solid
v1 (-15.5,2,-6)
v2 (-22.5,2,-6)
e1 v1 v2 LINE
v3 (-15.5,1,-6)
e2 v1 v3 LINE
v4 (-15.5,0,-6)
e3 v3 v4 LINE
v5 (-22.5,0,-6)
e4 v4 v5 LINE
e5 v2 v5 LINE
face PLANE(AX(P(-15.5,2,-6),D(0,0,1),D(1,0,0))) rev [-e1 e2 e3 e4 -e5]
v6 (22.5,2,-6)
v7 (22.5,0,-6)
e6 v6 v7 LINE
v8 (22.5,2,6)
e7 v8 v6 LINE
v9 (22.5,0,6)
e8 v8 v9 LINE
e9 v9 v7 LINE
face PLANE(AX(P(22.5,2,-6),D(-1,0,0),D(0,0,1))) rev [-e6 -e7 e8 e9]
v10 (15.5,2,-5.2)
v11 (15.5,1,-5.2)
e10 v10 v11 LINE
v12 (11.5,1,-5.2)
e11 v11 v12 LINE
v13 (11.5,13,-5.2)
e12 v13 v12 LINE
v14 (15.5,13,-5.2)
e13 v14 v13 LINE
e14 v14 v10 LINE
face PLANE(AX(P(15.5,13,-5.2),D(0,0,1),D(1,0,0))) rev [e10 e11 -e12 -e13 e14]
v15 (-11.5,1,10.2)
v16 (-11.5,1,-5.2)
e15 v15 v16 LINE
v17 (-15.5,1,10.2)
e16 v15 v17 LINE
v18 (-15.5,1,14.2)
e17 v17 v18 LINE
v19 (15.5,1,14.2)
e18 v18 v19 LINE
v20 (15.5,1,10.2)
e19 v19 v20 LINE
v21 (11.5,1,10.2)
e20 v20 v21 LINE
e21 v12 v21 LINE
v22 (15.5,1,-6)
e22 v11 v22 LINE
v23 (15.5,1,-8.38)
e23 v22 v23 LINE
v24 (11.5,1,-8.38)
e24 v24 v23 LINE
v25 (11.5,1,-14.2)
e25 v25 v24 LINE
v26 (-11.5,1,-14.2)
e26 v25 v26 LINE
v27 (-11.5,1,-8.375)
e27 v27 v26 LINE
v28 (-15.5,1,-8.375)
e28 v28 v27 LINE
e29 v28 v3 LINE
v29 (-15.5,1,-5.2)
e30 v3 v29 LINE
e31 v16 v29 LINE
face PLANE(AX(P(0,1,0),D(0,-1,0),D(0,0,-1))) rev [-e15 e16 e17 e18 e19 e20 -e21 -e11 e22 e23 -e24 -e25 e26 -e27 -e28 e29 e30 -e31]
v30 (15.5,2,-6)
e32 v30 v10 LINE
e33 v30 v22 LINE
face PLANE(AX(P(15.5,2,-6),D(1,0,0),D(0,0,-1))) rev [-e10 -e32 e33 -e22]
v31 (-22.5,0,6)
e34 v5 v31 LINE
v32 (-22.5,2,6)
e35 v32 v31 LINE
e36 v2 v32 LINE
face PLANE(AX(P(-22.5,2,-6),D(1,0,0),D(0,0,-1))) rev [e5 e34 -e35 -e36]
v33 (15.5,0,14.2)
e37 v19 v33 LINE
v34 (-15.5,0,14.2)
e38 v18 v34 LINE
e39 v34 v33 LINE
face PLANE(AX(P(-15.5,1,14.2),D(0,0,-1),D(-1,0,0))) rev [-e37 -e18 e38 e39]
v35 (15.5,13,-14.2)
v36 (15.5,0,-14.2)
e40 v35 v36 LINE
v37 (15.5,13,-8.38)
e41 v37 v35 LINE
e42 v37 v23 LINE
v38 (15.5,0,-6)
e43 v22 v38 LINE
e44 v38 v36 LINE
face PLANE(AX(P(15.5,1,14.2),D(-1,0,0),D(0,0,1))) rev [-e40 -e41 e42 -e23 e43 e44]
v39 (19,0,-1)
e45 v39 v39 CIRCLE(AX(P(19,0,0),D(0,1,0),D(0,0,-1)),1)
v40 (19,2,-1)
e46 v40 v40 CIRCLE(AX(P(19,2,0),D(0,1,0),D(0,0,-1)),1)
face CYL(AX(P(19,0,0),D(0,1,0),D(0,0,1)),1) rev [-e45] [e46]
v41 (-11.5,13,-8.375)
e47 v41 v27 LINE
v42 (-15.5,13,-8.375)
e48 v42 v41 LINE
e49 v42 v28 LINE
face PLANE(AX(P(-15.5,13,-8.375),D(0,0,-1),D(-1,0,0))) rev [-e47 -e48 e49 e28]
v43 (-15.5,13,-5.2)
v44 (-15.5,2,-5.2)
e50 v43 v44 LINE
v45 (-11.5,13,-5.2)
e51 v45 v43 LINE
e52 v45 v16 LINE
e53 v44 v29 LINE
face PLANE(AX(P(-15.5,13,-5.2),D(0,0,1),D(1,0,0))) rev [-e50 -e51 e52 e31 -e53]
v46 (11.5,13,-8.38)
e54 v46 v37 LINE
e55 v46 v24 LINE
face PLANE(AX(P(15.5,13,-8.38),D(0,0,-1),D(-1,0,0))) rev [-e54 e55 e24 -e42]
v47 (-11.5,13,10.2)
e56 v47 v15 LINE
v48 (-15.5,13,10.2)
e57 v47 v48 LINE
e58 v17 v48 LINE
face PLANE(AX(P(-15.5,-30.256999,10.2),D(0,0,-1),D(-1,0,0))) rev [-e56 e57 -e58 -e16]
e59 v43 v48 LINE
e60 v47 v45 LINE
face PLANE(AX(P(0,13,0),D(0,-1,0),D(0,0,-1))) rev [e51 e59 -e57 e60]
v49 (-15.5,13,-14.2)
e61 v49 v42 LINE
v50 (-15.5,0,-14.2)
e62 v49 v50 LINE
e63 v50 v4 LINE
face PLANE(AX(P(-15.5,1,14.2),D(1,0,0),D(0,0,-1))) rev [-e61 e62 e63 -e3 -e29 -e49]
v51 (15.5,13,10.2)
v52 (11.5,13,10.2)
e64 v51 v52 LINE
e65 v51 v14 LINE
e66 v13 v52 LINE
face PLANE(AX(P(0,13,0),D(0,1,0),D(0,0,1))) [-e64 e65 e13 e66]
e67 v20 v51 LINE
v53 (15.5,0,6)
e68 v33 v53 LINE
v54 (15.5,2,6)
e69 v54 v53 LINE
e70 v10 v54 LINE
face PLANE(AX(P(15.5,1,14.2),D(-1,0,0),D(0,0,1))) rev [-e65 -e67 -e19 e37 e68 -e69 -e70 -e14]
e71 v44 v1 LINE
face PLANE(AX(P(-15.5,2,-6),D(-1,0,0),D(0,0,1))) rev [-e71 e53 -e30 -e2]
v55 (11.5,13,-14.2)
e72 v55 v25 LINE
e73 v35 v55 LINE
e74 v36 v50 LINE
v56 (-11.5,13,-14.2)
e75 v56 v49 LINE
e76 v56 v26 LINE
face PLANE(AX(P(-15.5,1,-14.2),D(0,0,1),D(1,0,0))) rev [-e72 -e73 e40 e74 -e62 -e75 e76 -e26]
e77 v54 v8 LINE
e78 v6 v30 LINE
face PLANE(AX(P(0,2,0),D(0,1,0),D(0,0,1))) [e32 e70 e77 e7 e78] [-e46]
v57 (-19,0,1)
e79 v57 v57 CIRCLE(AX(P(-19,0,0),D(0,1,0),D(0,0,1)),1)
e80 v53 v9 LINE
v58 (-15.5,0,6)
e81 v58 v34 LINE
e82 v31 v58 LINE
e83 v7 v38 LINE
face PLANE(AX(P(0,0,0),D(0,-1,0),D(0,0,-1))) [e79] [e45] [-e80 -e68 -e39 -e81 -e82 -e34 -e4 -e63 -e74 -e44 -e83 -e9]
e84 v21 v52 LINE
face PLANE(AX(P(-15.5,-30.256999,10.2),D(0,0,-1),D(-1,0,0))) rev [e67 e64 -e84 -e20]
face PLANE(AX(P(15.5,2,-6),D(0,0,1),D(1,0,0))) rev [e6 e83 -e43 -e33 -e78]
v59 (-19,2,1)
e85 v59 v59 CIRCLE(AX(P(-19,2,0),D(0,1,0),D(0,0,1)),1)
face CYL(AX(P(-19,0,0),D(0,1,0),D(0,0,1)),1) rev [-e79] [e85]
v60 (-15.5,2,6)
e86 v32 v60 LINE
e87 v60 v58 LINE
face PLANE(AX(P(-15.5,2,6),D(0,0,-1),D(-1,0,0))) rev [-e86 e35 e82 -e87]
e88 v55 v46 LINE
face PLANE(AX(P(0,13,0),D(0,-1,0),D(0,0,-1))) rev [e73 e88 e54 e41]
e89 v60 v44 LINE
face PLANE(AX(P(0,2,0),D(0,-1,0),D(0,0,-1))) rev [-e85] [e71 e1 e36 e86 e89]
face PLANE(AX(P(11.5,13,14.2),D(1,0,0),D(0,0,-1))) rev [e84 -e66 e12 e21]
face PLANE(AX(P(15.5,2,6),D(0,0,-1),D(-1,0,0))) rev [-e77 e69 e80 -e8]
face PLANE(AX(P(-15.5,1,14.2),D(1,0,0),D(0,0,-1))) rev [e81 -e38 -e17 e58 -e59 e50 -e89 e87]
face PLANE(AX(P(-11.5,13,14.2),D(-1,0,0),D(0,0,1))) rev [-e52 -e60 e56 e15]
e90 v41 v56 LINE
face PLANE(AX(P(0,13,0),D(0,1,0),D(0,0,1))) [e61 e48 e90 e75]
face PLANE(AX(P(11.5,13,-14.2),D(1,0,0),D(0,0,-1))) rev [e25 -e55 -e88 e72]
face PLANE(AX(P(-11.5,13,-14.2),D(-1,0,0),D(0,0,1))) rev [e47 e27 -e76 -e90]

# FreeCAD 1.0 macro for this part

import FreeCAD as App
import Part
import Sketcher
from FreeCAD import Vector


def add_polygon(sketch, points):
    """Adds a closed chain of lines whose ends are joined by coincident constraints."""
    first, n = sketch.GeometryCount, len(points)
    for a, b in zip(points, points[1:] + points[:1]):
        sketch.addGeometry(Part.LineSegment(App.Vector(*a, 0), App.Vector(*b, 0)), False)
    for i in range(n):
        sketch.addConstraint(Sketcher.Constraint("Coincident", first + i, 2, first + (i + 1) % n, 1))

doc = App.newDocument("Part")
body = doc.addObject("PartDesign::Body", "Body")

# Sketch on XZ plane
sketch1 = doc.addObject("Sketcher::SketchObject", "Sketch")
body.addObject(sketch1)
sketch1.AttachmentSupport = (doc.XZ_Plane, [""])
sketch1.MapMode = "FlatFace"
add_polygon(sketch1, [(-16, -14), (-16, 14), (16, 14), (16, -14)])  # lines 0-3
sketch1.addConstraint(Sketcher.Constraint("Vertical", 0))
sketch1.addConstraint(Sketcher.Constraint("Horizontal", 1))
sketch1.addConstraint(Sketcher.Constraint("Vertical", 2))
sketch1.addConstraint(Sketcher.Constraint("Horizontal", 3))
sketch1.addConstraint(Sketcher.Constraint("Symmetric", 0, 2, 2, 2, -1, 1))
sketch1.addConstraint(Sketcher.Constraint("DistanceX", 1, 1, 1, 2, 31.0))
sketch1.addConstraint(Sketcher.Constraint("DistanceY", 0, 1, 0, 2, 28.4))
pad1 = doc.addObject("PartDesign::Pad", "Pad")
body.addObject(pad1)
pad1.Profile = sketch1
pad1.Length = 1
pad1.Reversed = True

# Sketch on XZ plane
sketch2 = doc.addObject("Sketcher::SketchObject", "Sketch001")
body.addObject(sketch2)
sketch2.AttachmentSupport = (doc.XZ_Plane, [""])
sketch2.MapMode = "FlatFace"
sketch2.AttachmentOffset = App.Placement(Vector(0, 0, -1), App.Rotation())
add_polygon(sketch2, [(-15.5, -5.2), (-15.5, 14.2), (-11.5, 14.2), (-11.5, -5.2)])  # lines 0-3
add_polygon(sketch2, [(11.5, -5.2), (11.5, 14.2), (15.5, 14.2), (15.5, -5.2)])  # lines 4-7
add_polygon(sketch2, [(-15.5, -14.2), (-15.5, -8.4), (-11.5, -8.4), (-11.5, -14.2)])  # lines 8-11
add_polygon(sketch2, [(11.5, -14.2), (11.5, -8.4), (15.5, -8.4), (15.5, -14.2)])  # lines 12-15
sketch2.addConstraint(Sketcher.Constraint("Vertical", 0))
sketch2.addConstraint(Sketcher.Constraint("Horizontal", 1))
sketch2.addConstraint(Sketcher.Constraint("Vertical", 2))
sketch2.addConstraint(Sketcher.Constraint("Horizontal", 3))
sketch2.addConstraint(Sketcher.Constraint("Vertical", 4))
sketch2.addConstraint(Sketcher.Constraint("Horizontal", 5))
sketch2.addConstraint(Sketcher.Constraint("Vertical", 6))
sketch2.addConstraint(Sketcher.Constraint("Horizontal", 7))
sketch2.addConstraint(Sketcher.Constraint("Vertical", 8))
sketch2.addConstraint(Sketcher.Constraint("Horizontal", 9))
sketch2.addConstraint(Sketcher.Constraint("Vertical", 10))
sketch2.addConstraint(Sketcher.Constraint("Horizontal", 11))
sketch2.addConstraint(Sketcher.Constraint("Vertical", 12))
sketch2.addConstraint(Sketcher.Constraint("Horizontal", 13))
sketch2.addConstraint(Sketcher.Constraint("Vertical", 14))
sketch2.addConstraint(Sketcher.Constraint("Horizontal", 15))
sketch2.addConstraint(Sketcher.Constraint("Symmetric", 4, 2, 10, 2, -1, 1))
sketch2.addConstraint(Sketcher.Constraint("Symmetric", 0, 2, 14, 2, -1, 1))
sketch2.addConstraint(Sketcher.Constraint("Symmetric", 1, 2, 4, 2, -2))
sketch2.addConstraint(Sketcher.Constraint("Symmetric", 3, 2, 6, 2, -2))
sketch2.addConstraint(Sketcher.Constraint("Vertical", 3, 2, 8, 2))
sketch2.addConstraint(Sketcher.Constraint("Vertical", 7, 2, 12, 2))
sketch2.addConstraint(Sketcher.Constraint("DistanceX", 1, 1, 1, 2, 4.0))
sketch2.addConstraint(Sketcher.Constraint("DistanceY", 0, 1, 0, 2, 19.4))
sketch2.addConstraint(Sketcher.Constraint("DistanceX", 1, 2, 4, 2, 23.0))
sketch2.addConstraint(Sketcher.Constraint("DistanceY", 10, 2, 2, 2, 9.0))
sketch2.addConstraint(Sketcher.Constraint("DistanceY", 12, 1, 12, 2, 5.82))
sketch2.addConstraint(Sketcher.Constraint("DistanceY", 8, 1, 8, 2, 5.825))
pad2 = doc.addObject("PartDesign::Pad", "Pad001")
body.addObject(pad2)
pad2.Profile = sketch2
pad2.Length = 12
pad2.Reversed = True

# Sketch on XZ plane
sketch3 = doc.addObject("Sketcher::SketchObject", "Sketch002")
body.addObject(sketch3)
sketch3.AttachmentSupport = (doc.XZ_Plane, [""])
sketch3.MapMode = "FlatFace"
sketch3.AttachmentOffset = App.Placement(Vector(0, 0, -13), App.Rotation())
add_polygon(sketch3, [(-15.5, 10.2), (-15.5, 14.2), (15.5, 14.2), (15.5, 10.2)])  # lines 0-3
sketch3.addConstraint(Sketcher.Constraint("Vertical", 0))
sketch3.addConstraint(Sketcher.Constraint("Horizontal", 1))
sketch3.addConstraint(Sketcher.Constraint("Vertical", 2))
sketch3.addConstraint(Sketcher.Constraint("Horizontal", 3))
sketch3.addConstraint(Sketcher.Constraint("DistanceX", 1, 1, 1, 2, 31.0))
sketch3.addConstraint(Sketcher.Constraint("DistanceY", 0, 1, 0, 2, 4.0))
sketch3.addConstraint(Sketcher.Constraint("DistanceX", 0, 2, -1, 1, 15.5))
sketch3.addConstraint(Sketcher.Constraint("DistanceY", -1, 1, 0, 2, 14.2))
pocket1 = doc.addObject("PartDesign::Pocket", "Pocket")
body.addObject(pocket1)
pocket1.Profile = sketch3
pocket1.Length = 12
pocket1.Reversed = True

# Sketch on XZ plane
sketch4 = doc.addObject("Sketcher::SketchObject", "Sketch003")
body.addObject(sketch4)
sketch4.AttachmentSupport = (doc.XZ_Plane, [""])
sketch4.MapMode = "FlatFace"
add_polygon(sketch4, [(16, -6), (16, 6), (22, 6), (22, -6)])  # lines 0-3
add_polygon(sketch4, [(-22, -6), (-22, 6), (-16, 6), (-16, -6)])  # lines 4-7
sketch4.addConstraint(Sketcher.Constraint("Vertical", 0))
sketch4.addConstraint(Sketcher.Constraint("Horizontal", 1))
sketch4.addConstraint(Sketcher.Constraint("Vertical", 2))
sketch4.addConstraint(Sketcher.Constraint("Horizontal", 3))
sketch4.addConstraint(Sketcher.Constraint("Vertical", 4))
sketch4.addConstraint(Sketcher.Constraint("Horizontal", 5))
sketch4.addConstraint(Sketcher.Constraint("Vertical", 6))
sketch4.addConstraint(Sketcher.Constraint("Horizontal", 7))
sketch4.addConstraint(Sketcher.Constraint("Symmetric", 2, 2, 4, 2, -1, 1))
sketch4.addConstraint(Sketcher.Constraint("Symmetric", 0, 2, 6, 2, -1, 1))
sketch4.addConstraint(Sketcher.Constraint("Horizontal", 1, 2, 4, 2))
sketch4.addConstraint(Sketcher.Constraint("DistanceX", 1, 1, 1, 2, 7.0))
sketch4.addConstraint(Sketcher.Constraint("DistanceY", 0, 1, 0, 2, 12.0))
sketch4.addConstraint(Sketcher.Constraint("DistanceX", 4, 2, 0, 2, 38.0))
pad3 = doc.addObject("PartDesign::Pad", "Pad002")
body.addObject(pad3)
pad3.Profile = sketch4
pad3.Length = 2
pad3.Reversed = True

# Sketch on XZ plane
sketch5 = doc.addObject("Sketcher::SketchObject", "Sketch004")
body.addObject(sketch5)
sketch5.AttachmentSupport = (doc.XZ_Plane, [""])
sketch5.MapMode = "FlatFace"
sketch5.AttachmentOffset = App.Placement(Vector(0, 0, -2), App.Rotation())
sketch5.addGeometry(Part.Circle(Vector(-19, 0, 0), Vector(0, 0, 1), 1), False)
sketch5.addGeometry(Part.Circle(Vector(19, 0, 0), Vector(0, 0, 1), 1), False)
sketch5.addConstraint(Sketcher.Constraint("Equal", 0, 1))
sketch5.addConstraint(Sketcher.Constraint("Symmetric", 0, 3, 1, 3, -1, 1))
sketch5.addConstraint(Sketcher.Constraint("PointOnObject", 0, 3, -1))
sketch5.addConstraint(Sketcher.Constraint("Diameter", 0, 2.0))
sketch5.addConstraint(Sketcher.Constraint("DistanceX", 0, 3, -1, 1, 19.0))
pocket2 = doc.addObject("PartDesign::Pocket", "Pocket001")
body.addObject(pocket2)
pocket2.Profile = sketch5
pocket2.Type = "ThroughAll"
pocket2.Reversed = True

doc.recompute()
